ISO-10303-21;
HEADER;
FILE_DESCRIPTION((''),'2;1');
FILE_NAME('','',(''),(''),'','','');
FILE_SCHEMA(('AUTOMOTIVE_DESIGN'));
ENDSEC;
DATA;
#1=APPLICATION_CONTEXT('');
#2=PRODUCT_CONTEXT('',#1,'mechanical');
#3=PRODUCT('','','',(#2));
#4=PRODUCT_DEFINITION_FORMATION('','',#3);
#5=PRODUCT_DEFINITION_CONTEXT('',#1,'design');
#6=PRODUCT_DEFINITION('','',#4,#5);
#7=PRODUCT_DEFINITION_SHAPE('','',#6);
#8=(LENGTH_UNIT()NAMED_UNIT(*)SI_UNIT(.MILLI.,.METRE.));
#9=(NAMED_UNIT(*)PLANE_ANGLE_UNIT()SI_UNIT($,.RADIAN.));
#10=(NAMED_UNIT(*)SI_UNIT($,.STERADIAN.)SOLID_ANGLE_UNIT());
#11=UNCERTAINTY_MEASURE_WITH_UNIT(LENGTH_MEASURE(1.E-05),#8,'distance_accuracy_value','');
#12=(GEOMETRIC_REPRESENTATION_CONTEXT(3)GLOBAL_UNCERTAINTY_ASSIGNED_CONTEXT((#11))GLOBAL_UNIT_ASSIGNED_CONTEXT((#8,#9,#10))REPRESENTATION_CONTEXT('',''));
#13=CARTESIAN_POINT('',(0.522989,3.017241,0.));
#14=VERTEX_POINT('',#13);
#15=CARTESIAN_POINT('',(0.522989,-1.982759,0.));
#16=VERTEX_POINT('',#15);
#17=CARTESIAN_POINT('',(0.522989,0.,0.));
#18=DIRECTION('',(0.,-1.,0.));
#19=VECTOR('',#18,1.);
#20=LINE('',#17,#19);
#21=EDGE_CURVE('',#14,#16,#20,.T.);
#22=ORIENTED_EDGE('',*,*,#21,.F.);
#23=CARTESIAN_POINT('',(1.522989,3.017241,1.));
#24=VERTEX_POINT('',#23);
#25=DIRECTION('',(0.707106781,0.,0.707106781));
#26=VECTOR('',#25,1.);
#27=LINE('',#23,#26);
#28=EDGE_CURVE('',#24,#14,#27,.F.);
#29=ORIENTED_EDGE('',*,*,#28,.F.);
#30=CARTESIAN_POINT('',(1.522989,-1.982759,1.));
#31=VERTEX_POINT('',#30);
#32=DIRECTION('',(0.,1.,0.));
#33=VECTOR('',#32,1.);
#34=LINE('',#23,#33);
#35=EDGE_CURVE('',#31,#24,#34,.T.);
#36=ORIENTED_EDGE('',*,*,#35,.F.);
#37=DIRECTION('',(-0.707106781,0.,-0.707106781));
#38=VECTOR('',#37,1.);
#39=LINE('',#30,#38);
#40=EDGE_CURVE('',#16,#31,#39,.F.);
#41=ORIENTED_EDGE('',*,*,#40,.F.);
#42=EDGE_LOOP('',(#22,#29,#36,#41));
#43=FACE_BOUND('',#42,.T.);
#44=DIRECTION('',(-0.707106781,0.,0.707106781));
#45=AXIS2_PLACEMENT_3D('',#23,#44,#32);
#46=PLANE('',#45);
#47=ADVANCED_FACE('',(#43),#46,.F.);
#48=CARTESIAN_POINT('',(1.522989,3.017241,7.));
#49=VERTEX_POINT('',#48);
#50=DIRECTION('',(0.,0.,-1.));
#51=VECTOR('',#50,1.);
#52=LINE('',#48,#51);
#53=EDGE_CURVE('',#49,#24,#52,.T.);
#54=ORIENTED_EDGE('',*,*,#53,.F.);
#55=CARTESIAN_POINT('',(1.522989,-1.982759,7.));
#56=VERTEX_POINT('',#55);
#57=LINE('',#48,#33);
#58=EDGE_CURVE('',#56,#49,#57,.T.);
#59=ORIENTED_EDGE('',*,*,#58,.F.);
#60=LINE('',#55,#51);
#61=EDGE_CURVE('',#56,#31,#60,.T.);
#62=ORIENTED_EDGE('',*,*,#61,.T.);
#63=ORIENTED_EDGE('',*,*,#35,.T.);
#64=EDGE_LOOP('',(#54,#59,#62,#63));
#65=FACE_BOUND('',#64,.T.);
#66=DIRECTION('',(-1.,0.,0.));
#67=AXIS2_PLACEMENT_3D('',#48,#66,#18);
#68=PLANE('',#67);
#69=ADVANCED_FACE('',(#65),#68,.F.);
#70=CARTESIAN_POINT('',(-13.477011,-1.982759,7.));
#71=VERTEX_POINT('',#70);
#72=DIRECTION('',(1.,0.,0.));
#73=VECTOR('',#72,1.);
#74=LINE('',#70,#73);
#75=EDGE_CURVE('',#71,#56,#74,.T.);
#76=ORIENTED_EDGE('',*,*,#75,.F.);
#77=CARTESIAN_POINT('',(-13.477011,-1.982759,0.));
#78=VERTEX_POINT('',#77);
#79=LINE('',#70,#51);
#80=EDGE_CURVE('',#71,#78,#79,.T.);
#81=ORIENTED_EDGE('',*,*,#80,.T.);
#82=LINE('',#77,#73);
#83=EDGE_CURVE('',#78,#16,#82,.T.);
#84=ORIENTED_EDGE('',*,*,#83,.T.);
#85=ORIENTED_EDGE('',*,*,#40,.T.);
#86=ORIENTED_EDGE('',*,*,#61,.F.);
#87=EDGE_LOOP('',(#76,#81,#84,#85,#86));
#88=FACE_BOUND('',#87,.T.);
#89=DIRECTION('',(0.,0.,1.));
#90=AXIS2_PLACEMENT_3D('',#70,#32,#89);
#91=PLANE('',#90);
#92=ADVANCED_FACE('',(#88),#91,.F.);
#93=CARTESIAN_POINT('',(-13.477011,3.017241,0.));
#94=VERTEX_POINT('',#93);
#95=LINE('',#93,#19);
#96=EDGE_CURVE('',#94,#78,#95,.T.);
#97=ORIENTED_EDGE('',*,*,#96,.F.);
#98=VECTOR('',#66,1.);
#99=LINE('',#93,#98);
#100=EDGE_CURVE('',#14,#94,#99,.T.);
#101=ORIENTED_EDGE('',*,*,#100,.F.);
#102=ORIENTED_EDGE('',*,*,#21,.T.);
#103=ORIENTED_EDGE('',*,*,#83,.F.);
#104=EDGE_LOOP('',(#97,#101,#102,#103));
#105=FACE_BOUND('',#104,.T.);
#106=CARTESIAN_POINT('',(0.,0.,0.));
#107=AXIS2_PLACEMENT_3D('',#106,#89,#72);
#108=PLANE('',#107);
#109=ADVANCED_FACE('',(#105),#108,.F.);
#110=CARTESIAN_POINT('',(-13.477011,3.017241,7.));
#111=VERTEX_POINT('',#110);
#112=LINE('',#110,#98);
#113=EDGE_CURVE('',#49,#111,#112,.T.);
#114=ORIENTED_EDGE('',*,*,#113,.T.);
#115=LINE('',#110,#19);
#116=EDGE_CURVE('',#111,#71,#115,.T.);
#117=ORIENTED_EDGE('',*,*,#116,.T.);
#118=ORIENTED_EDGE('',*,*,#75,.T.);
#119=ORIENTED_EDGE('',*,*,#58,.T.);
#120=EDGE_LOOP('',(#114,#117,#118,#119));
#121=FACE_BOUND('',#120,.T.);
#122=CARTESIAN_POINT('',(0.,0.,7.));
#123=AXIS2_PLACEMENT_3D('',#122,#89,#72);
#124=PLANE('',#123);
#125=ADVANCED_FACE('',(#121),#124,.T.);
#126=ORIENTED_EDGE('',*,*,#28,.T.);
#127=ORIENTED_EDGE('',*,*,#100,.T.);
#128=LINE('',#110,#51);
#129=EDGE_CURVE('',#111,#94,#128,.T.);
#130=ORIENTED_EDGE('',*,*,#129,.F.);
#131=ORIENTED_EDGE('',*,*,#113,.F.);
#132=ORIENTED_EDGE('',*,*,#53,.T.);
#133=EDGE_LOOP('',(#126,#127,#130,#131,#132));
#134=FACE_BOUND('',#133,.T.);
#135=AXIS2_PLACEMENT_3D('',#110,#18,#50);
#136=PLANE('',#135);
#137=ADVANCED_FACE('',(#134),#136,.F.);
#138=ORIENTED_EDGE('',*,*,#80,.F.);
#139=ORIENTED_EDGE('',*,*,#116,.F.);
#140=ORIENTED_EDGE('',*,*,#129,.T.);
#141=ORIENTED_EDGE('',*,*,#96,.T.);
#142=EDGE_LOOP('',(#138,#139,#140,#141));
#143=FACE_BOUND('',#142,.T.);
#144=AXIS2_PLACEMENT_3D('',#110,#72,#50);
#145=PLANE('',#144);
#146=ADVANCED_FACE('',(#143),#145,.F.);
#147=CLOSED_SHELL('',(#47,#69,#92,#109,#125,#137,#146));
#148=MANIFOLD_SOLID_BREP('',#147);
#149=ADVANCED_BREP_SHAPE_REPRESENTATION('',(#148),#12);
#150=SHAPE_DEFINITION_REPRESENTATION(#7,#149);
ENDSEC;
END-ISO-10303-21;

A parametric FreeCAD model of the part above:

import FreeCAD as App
import Part
import Sketcher
from FreeCAD import Vector
Q = App.Units.Quantity


def edges_at(feature, points):
    """Names of the edges that pass closest to the given points."""
    edges = feature.Shape.Edges
    near = lambda p: min(range(len(edges)), key=lambda i: edges[i].distToShape(Part.Vertex(*p))[0])
    return sorted({f"Edge{near(p) + 1}" for p in points})

doc = App.newDocument("Part")
params = doc.addObject("Spreadsheet::Sheet", "Params")
for row, (alias, value) in enumerate([
    ("sketch1_width", "15 mm"),
    ("sketch1_height", "5 mm"),
    ("pad1_length", "7 mm"),
    ("chamfer_size", "1 mm"),
], start=1):
    params.set(f"A{row}", alias)
    params.set(f"B{row}", "=" + value)
    params.setAlias(f"B{row}", alias)

body = doc.addObject("PartDesign::Body", "Body")

# Sketch on XY plane
sketch1 = body.newObject("Sketcher::SketchObject", "Sketch")
sketch1.AttachmentSupport = (doc.getObject("XY_Plane"), [""])
sketch1.MapMode = "FlatFace"
sketch1.addGeometry(Part.LineSegment(Vector(-13, 3, 0), Vector(-13, -2, 0)), False)
sketch1.addGeometry(Part.LineSegment(Vector(-13, -2, 0), Vector(2, -2, 0)), False)
sketch1.addGeometry(Part.LineSegment(Vector(2, -2, 0), Vector(2, 3, 0)), False)
sketch1.addGeometry(Part.LineSegment(Vector(2, 3, 0), Vector(-13, 3, 0)), False)
sketch1.addConstraint(Sketcher.Constraint("Coincident", 0, 2, 1, 1))
sketch1.addConstraint(Sketcher.Constraint("Coincident", 1, 2, 2, 1))
sketch1.addConstraint(Sketcher.Constraint("Coincident", 2, 2, 3, 1))
sketch1.addConstraint(Sketcher.Constraint("Coincident", 3, 2, 0, 1))
sketch1.addConstraint(Sketcher.Constraint("Vertical", 0))
sketch1.addConstraint(Sketcher.Constraint("Horizontal", 1))
sketch1.addConstraint(Sketcher.Constraint("Vertical", 2))
sketch1.addConstraint(Sketcher.Constraint("Horizontal", 3))
sketch1.addConstraint(Sketcher.Constraint("DistanceX", 1, 1, 1, 2, Q("15 mm")))
sketch1.addConstraint(Sketcher.Constraint("DistanceY", 0, 2, 0, 1, Q("5 mm")))
sketch1.addConstraint(Sketcher.Constraint("DistanceX", 0, 2, -1, 1, Q("13.477011 mm")))
sketch1.addConstraint(Sketcher.Constraint("DistanceY", 0, 2, -1, 1, Q("1.982759 mm")))
sketch1.setExpression("Constraints[8]", "Params.sketch1_width")
sketch1.setExpression("Constraints[9]", "Params.sketch1_height")
pad1 = body.newObject("PartDesign::Pad", "Pad")
pad1.Profile = sketch1
pad1.setExpression("Length", "Params.pad1_length")
doc.recompute()

chamfer = body.newObject("PartDesign::Chamfer", "Chamfer")
chamfer.Base = (pad1, edges_at(pad1, [(1.523, 0.517, 0)]))
chamfer.setExpression("Size", "Params.chamfer_size")

doc.recompute()
